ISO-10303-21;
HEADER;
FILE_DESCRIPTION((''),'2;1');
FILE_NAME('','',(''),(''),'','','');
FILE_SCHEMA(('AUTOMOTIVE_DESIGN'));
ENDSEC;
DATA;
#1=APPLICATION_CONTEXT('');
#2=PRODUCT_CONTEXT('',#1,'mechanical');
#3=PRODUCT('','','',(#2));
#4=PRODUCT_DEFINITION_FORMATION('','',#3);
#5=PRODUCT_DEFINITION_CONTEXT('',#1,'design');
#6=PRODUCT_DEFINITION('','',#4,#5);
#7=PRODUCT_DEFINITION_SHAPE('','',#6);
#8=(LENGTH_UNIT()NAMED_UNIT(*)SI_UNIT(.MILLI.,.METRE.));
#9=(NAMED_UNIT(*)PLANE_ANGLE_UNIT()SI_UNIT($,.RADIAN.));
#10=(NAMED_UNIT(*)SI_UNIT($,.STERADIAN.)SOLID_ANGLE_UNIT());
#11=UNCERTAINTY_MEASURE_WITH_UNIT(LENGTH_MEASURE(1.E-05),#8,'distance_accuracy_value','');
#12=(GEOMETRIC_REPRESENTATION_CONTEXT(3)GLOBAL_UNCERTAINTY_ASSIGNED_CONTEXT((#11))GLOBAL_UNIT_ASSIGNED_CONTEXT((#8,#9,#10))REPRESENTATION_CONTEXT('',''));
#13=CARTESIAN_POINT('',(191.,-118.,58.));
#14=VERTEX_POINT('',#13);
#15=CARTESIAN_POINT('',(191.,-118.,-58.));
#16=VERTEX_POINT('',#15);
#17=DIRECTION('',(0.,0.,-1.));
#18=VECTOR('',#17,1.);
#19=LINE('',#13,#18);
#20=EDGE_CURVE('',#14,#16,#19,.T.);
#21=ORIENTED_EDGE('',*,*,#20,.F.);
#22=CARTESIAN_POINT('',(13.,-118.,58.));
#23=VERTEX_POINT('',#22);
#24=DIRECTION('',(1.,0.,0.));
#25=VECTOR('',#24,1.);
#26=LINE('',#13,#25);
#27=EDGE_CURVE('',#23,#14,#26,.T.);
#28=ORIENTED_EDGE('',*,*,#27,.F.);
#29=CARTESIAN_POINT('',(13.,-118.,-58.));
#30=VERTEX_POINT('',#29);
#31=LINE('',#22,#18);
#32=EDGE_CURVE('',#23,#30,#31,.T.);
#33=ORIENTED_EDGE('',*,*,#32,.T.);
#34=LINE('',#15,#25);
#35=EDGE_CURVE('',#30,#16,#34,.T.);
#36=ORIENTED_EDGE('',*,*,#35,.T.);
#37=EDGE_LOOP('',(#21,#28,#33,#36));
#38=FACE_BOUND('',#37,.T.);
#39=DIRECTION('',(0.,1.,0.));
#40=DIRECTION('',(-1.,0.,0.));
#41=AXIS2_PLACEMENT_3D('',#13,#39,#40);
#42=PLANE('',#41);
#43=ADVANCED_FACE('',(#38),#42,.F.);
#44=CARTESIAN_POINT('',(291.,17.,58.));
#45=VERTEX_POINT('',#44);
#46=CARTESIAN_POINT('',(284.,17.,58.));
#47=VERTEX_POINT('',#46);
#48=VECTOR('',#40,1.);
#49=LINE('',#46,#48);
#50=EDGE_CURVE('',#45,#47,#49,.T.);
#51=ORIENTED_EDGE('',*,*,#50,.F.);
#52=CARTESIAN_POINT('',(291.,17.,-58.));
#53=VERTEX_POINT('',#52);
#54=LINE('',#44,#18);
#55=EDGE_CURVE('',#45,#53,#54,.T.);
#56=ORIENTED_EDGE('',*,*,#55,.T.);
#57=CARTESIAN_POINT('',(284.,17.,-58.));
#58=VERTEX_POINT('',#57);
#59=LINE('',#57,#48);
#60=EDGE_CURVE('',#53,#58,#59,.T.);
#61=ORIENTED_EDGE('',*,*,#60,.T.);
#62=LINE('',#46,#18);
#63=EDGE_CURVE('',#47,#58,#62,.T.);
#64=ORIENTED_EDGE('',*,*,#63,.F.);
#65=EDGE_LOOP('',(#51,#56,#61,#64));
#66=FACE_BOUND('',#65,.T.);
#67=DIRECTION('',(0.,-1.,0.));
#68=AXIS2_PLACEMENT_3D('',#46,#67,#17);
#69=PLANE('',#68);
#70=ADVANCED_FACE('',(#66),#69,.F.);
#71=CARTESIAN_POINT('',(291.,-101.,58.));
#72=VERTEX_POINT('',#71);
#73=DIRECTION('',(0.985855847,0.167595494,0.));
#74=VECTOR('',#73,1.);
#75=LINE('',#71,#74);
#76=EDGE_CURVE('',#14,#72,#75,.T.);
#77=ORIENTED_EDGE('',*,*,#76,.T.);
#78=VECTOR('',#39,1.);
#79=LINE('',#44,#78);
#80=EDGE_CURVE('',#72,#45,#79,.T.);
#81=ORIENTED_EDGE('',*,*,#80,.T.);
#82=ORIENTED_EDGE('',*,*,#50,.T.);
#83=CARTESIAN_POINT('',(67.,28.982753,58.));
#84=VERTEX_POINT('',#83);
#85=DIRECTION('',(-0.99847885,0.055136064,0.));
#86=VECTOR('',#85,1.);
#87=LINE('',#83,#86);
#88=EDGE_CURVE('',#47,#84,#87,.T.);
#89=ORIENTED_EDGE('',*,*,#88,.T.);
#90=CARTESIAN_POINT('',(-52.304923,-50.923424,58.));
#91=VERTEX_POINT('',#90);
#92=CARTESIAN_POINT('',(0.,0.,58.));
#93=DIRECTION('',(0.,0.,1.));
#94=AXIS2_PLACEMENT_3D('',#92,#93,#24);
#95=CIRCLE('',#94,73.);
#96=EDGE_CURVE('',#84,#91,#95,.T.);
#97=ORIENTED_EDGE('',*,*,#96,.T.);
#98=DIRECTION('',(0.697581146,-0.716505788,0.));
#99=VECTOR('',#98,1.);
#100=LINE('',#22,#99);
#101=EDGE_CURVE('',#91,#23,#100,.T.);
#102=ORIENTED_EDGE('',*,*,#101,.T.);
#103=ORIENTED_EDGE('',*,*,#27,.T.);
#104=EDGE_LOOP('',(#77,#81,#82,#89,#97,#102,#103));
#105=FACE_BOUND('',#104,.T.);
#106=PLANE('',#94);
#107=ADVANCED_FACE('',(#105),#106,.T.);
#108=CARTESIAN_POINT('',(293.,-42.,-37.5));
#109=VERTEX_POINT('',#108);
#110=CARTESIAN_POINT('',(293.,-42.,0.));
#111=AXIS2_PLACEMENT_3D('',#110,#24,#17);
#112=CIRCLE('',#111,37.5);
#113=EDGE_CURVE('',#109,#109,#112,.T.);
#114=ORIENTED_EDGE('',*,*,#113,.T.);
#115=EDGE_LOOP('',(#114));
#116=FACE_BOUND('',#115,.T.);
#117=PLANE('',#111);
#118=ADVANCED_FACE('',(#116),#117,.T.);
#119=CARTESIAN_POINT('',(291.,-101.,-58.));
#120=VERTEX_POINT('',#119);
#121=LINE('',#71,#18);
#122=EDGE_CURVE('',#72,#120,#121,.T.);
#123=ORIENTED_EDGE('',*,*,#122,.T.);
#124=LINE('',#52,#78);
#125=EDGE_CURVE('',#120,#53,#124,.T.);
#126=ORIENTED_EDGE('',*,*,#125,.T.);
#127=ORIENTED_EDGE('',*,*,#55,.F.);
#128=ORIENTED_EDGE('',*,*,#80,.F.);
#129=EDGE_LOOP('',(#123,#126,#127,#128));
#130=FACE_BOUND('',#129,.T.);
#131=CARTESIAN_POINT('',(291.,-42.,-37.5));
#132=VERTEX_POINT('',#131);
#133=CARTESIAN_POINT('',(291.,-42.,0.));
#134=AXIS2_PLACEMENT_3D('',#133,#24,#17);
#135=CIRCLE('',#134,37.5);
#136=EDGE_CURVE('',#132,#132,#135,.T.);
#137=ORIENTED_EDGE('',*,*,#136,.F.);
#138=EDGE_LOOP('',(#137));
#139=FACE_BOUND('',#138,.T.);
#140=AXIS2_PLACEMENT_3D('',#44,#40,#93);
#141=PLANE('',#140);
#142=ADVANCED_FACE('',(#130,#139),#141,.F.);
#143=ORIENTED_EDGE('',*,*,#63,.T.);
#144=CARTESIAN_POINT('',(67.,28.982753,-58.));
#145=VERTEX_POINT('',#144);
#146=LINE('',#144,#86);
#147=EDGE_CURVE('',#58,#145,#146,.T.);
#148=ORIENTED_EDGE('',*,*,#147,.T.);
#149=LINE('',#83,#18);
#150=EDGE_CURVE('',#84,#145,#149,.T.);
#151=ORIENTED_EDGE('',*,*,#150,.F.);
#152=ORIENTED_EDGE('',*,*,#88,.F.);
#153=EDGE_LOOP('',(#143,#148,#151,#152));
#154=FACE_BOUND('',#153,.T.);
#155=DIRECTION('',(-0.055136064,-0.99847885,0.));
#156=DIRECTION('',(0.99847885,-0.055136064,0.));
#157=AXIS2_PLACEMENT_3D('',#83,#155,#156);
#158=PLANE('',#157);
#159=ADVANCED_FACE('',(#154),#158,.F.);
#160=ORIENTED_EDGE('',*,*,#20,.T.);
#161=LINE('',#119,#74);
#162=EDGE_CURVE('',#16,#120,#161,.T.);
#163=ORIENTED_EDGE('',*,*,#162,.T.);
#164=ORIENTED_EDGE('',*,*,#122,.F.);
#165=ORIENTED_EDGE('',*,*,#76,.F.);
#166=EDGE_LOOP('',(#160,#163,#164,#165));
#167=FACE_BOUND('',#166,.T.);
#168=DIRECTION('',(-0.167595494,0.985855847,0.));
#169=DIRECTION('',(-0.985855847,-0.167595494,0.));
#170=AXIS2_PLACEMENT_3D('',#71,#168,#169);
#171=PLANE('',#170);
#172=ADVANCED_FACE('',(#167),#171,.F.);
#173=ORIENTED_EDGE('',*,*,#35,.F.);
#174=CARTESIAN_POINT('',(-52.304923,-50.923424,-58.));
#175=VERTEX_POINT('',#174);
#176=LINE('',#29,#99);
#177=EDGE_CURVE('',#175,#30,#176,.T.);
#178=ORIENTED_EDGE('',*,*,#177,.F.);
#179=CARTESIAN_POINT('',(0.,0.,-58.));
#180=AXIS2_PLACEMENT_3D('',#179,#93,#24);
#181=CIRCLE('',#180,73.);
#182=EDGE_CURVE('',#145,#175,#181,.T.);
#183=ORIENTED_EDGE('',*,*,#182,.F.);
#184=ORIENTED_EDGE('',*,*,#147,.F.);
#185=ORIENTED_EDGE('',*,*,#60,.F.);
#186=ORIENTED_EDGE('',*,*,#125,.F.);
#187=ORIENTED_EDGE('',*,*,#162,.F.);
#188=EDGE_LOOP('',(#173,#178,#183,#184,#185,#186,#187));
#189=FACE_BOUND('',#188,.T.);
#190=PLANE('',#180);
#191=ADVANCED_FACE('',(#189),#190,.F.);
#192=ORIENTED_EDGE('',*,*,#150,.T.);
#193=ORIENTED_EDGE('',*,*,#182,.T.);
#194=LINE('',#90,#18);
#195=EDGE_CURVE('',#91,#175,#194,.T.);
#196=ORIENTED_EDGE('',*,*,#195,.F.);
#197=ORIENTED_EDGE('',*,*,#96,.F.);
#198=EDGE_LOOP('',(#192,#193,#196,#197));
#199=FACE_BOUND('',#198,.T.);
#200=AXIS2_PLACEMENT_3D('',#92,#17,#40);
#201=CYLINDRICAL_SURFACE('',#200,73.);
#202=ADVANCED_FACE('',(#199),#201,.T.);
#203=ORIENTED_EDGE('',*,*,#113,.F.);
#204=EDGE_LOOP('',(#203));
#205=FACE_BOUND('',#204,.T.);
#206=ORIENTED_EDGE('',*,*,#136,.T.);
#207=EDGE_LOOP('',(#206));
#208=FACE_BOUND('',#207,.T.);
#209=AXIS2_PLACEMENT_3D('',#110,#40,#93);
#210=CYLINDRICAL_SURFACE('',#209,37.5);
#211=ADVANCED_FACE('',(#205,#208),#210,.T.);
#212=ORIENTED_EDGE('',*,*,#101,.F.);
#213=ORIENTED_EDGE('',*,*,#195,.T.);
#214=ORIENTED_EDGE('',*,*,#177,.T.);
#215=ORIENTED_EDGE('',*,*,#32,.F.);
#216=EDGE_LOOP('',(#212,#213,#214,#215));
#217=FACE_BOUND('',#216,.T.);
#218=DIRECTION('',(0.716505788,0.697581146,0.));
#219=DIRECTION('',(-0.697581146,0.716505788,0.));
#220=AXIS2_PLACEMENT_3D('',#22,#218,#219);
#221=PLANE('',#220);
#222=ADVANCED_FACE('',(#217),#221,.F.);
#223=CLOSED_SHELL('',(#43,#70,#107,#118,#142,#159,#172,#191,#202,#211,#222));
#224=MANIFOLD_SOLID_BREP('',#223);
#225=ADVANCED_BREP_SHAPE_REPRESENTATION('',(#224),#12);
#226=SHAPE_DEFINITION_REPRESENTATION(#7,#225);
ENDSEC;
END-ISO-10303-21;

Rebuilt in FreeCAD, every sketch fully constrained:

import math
import FreeCAD as App
import Part
import Sketcher

doc = App.newDocument("Part")
body = doc.addObject("PartDesign::Body", "Body")

sketch1 = body.newObject("Sketcher::SketchObject", "Sketch")
sketch1.AttachmentSupport = (doc.getObject("XY_Plane"), [""])
sketch1.MapMode = "FlatFace"
sketch1.addGeometry([
    Part.LineSegment(App.Vector(284, 17, 0), App.Vector(67, 29, 0)),
    Part.ArcOfCircle(Part.Circle(App.Vector(0, 0, 0), App.Vector(0, 0, 1), 73), math.radians(23), math.radians(224)),
    Part.LineSegment(App.Vector(-52, -51, 0), App.Vector(13, -118, 0)),
    Part.LineSegment(App.Vector(13, -118, 0), App.Vector(191, -118, 0)),
    Part.LineSegment(App.Vector(191, -118, 0), App.Vector(291, -101, 0)),
    Part.LineSegment(App.Vector(291, -101, 0), App.Vector(291, 17, 0)),
    Part.LineSegment(App.Vector(291, 17, 0), App.Vector(284, 17, 0)),
], False)
sketch1.addConstraint([
    Sketcher.Constraint("Coincident", 0, 2, 1, 1),
    Sketcher.Constraint("Tangent", 1, 2, 2, 1),
    Sketcher.Constraint("Coincident", 2, 2, 3, 1),
    Sketcher.Constraint("Coincident", 3, 2, 4, 1),
    Sketcher.Constraint("Coincident", 4, 2, 5, 1),
    Sketcher.Constraint("Coincident", 5, 2, 6, 1),
    Sketcher.Constraint("Coincident", 6, 2, 0, 1),
    Sketcher.Constraint("Horizontal", 3),
    Sketcher.Constraint("Vertical", 5),
    Sketcher.Constraint("Horizontal", 6),
    Sketcher.Constraint("Coincident", 1, 3, -1, 1),
    Sketcher.Constraint("Radius", 1, 73.0),
    Sketcher.Constraint("DistanceX", 3, 1, 3, 2, 178.0),
    Sketcher.Constraint("DistanceX", 6, 2, 6, 1, 7.0),
    Sketcher.Constraint("DistanceY", 5, 1, 5, 2, 118.0),
    Sketcher.Constraint("DistanceX", -1, 1, 0, 2, 67.0),
    Sketcher.Constraint("DistanceX", -1, 1, 2, 2, 13.0),
    Sketcher.Constraint("DistanceY", 2, 2, -1, 1, 118.0),
    Sketcher.Constraint("DistanceX", -1, 1, 4, 2, 291.0),
    Sketcher.Constraint("DistanceY", 4, 2, -1, 1, 101.0),
])
pad1 = body.newObject("PartDesign::Pad", "Pad")
pad1.Profile = sketch1
pad1.Length = 116
pad1.Midplane = True

sketch2 = body.newObject("Sketcher::SketchObject", "Sketch001")
sketch2.AttachmentSupport = (doc.getObject("YZ_Plane"), [""])
sketch2.MapMode = "FlatFace"
sketch2.AttachmentOffset = App.Placement(App.Vector(0, 0, 291), App.Rotation())
sketch2.addGeometry(Part.Circle(App.Vector(-42, 0, 0), App.Vector(0, 0, 1), 38), False)
sketch2.addConstraint([
    Sketcher.Constraint("PointOnObject", 0, 3, -1),
    Sketcher.Constraint("Diameter", 0, 75.0),
    Sketcher.Constraint("DistanceX", 0, 3, -1, 1, 42.0),
])
pad2 = body.newObject("PartDesign::Pad", "Pad001")
pad2.Profile = sketch2
pad2.Length = 2

doc.recompute()
